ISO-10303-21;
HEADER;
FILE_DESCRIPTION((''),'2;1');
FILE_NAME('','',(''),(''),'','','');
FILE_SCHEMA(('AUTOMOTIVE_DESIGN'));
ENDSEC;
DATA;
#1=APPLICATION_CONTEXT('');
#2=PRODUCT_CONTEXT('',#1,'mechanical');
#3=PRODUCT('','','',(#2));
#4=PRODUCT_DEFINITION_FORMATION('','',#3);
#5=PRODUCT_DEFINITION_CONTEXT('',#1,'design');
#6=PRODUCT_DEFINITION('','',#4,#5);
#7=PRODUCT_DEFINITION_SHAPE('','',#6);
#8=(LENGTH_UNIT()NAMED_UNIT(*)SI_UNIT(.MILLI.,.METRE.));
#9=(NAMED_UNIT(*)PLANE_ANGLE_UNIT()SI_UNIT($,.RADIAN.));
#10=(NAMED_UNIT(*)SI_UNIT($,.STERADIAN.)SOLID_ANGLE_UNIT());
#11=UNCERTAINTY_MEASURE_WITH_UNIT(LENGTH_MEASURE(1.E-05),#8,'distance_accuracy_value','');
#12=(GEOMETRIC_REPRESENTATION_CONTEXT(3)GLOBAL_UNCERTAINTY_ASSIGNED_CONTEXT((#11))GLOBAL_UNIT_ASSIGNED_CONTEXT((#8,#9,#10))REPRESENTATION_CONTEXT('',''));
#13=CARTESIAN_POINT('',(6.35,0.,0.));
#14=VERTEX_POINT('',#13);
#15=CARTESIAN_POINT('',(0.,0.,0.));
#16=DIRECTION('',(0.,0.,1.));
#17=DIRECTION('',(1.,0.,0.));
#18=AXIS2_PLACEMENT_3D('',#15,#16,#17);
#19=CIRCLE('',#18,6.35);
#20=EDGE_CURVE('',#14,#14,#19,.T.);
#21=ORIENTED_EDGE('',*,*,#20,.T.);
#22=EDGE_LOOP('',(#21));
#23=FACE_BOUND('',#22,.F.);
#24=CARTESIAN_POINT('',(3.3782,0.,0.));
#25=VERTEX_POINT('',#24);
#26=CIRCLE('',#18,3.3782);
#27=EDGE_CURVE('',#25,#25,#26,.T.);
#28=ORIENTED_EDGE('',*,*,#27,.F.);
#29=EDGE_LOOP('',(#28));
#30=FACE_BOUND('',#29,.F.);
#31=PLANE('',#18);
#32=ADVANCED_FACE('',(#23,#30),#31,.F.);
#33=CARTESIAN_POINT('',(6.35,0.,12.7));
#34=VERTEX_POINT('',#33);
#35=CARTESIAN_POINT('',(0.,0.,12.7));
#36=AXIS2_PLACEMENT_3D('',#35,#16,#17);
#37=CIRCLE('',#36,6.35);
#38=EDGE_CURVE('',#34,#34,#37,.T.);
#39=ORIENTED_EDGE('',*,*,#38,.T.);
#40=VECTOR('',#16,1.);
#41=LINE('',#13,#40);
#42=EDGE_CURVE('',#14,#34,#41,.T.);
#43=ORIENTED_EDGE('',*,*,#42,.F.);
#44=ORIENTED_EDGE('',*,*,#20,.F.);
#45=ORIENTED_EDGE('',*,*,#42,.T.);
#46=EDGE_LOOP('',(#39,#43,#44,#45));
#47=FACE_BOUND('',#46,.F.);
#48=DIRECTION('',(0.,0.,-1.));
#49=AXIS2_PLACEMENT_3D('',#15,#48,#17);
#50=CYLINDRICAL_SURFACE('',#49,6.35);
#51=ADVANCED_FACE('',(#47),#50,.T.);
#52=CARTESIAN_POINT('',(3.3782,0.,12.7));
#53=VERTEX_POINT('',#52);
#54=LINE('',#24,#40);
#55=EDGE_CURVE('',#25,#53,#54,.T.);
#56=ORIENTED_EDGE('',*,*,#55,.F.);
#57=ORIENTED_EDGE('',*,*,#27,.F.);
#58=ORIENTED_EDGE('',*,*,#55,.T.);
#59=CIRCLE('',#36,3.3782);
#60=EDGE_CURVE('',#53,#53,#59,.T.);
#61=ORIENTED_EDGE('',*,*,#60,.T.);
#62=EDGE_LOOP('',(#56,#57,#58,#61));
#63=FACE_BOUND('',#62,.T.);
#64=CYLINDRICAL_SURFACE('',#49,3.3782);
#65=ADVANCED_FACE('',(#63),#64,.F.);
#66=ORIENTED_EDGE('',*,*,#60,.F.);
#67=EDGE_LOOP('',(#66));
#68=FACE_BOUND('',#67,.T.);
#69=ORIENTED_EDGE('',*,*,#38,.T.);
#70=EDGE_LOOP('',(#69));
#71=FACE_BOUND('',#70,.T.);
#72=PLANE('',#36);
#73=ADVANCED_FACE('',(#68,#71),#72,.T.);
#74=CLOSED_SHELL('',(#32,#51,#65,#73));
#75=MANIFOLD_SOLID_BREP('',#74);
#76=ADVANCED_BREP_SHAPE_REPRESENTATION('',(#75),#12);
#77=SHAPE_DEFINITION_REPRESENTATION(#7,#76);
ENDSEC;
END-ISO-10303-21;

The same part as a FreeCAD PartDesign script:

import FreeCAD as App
import Part
import Sketcher
from FreeCAD import Vector
Q = App.Units.Quantity

doc = App.newDocument("Part")
body = doc.addObject("PartDesign::Body", "Body")

# Sketch on XY plane
sketch1 = body.newObject("Sketcher::SketchObject", "Sketch")
sketch1.AttachmentSupport = (doc.getObject("XY_Plane"), [""])
sketch1.MapMode = "FlatFace"
sketch1.addGeometry([
    Part.Circle(Vector(0, 0, 0), Vector(0, 0, 1), 6.3),
    Part.Circle(Vector(0, 0, 0), Vector(0, 0, 1), 3.4),
], False)
sketch1.addConstraint([
    Sketcher.Constraint("Coincident", 0, 3, -1, 1),
    Sketcher.Constraint("Coincident", 1, 3, -1, 1),
    Sketcher.Constraint("Diameter", 0, Q("0.5 in")),
    Sketcher.Constraint("Diameter", 1, Q("0.266 in")),
])
pad1 = body.newObject("PartDesign::Pad", "Pad")
pad1.Profile = sketch1
pad1.Length = Q("0.5 in")

doc.recompute()
